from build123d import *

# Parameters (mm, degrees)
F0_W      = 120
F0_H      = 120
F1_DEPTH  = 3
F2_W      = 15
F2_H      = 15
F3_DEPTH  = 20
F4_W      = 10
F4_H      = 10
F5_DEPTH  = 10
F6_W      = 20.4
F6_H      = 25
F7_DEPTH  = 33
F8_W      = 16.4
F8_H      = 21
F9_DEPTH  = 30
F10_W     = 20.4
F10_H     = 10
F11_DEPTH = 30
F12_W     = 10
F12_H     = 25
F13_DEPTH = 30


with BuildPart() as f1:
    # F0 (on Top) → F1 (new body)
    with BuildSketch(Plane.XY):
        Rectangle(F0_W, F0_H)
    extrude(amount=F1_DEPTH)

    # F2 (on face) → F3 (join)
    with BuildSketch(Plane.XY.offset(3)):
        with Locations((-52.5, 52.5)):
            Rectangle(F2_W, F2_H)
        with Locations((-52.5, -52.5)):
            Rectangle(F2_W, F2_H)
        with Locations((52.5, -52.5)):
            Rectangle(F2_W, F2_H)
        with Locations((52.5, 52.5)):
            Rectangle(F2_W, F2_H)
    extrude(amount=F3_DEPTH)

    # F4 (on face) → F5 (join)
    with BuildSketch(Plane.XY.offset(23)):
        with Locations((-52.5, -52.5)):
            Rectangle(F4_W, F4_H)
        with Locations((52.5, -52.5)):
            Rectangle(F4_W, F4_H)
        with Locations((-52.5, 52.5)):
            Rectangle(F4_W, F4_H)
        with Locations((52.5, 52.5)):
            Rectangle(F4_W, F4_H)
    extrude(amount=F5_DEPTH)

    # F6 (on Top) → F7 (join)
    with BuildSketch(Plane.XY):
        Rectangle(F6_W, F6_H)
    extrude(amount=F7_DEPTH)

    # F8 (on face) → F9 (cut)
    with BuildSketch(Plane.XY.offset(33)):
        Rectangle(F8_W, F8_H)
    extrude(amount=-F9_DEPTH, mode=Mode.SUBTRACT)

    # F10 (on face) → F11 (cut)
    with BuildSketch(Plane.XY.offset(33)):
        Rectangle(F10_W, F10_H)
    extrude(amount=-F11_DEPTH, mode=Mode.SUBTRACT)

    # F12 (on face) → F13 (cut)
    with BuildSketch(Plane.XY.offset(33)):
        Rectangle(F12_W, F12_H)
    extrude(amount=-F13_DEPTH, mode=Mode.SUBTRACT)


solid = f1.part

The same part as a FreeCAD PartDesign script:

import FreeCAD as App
import Part
import Sketcher

V = App.Vector

doc = App.newDocument("Part")
body = doc.addObject("PartDesign::Body", "Body")

# Sketch on XY plane
sketch1 = body.newObject("Sketcher::SketchObject", "Sketch")
sketch1.AttachmentSupport = (doc.getObject("XY_Plane"), [""])
sketch1.MapMode = "FlatFace"
sketch1.addGeometry([
    Part.LineSegment(V(-60, 60, 0), V(-60, -60, 0)),
    Part.LineSegment(V(-60, -60, 0), V(60, -60, 0)),
    Part.LineSegment(V(60, -60, 0), V(60, 60, 0)),
    Part.LineSegment(V(60, 60, 0), V(-60, 60, 0)),
], False)
sketch1.addConstraint([
    Sketcher.Constraint("Coincident", 0, 2, 1, 1),
    Sketcher.Constraint("Coincident", 1, 2, 2, 1),
    Sketcher.Constraint("Coincident", 2, 2, 3, 1),
    Sketcher.Constraint("Coincident", 3, 2, 0, 1),
    Sketcher.Constraint("Vertical", 0),
    Sketcher.Constraint("Horizontal", 1),
    Sketcher.Constraint("Vertical", 2),
    Sketcher.Constraint("Horizontal", 3),
    Sketcher.Constraint("Symmetric", 0, 2, 2, 2, -1, 1),
    Sketcher.Constraint("Equal", 3, 0),
    Sketcher.Constraint("DistanceX", 1, 1, 1, 2, 120.0),
])
pad1 = body.newObject("PartDesign::Pad", "Pad")
pad1.Profile = sketch1
pad1.Length = 3

# Sketch on XY plane
sketch2 = body.newObject("Sketcher::SketchObject", "Sketch001")
sketch2.AttachmentSupport = (doc.getObject("XY_Plane"), [""])
sketch2.MapMode = "FlatFace"
sketch2.AttachmentOffset = App.Placement(V(0, 0, 3), App.Rotation())
sketch2.addGeometry([
    Part.LineSegment(V(-60, 60, 0), V(-60, 45, 0)),  # 0
    Part.LineSegment(V(-60, 45, 0), V(-45, 45, 0)),  # 1
    Part.LineSegment(V(-45, 45, 0), V(-45, 60, 0)),  # 2
    Part.LineSegment(V(-45, 60, 0), V(-60, 60, 0)),  # 3
    Part.LineSegment(V(-60, -45, 0), V(-60, -60, 0)),  # 4
    Part.LineSegment(V(-60, -60, 0), V(-45, -60, 0)),  # 5
    Part.LineSegment(V(-45, -60, 0), V(-45, -45, 0)),  # 6
    Part.LineSegment(V(-45, -45, 0), V(-60, -45, 0)),  # 7
    Part.LineSegment(V(45, -45, 0), V(45, -60, 0)),  # 8
    Part.LineSegment(V(45, -60, 0), V(60, -60, 0)),  # 9
    Part.LineSegment(V(60, -60, 0), V(60, -45, 0)),  # 10
    Part.LineSegment(V(60, -45, 0), V(45, -45, 0)),  # 11
    Part.LineSegment(V(45, 60, 0), V(45, 45, 0)),  # 12
    Part.LineSegment(V(45, 45, 0), V(60, 45, 0)),  # 13
    Part.LineSegment(V(60, 45, 0), V(60, 60, 0)),  # 14
    Part.LineSegment(V(60, 60, 0), V(45, 60, 0)),  # 15
], False)
sketch2.addConstraint([
    Sketcher.Constraint("Coincident", 0, 2, 1, 1),
    Sketcher.Constraint("Coincident", 1, 2, 2, 1),
    Sketcher.Constraint("Coincident", 2, 2, 3, 1),
    Sketcher.Constraint("Coincident", 3, 2, 0, 1),
    Sketcher.Constraint("Coincident", 4, 2, 5, 1),
    Sketcher.Constraint("Coincident", 5, 2, 6, 1),
    Sketcher.Constraint("Coincident", 6, 2, 7, 1),
    Sketcher.Constraint("Coincident", 7, 2, 4, 1),
    Sketcher.Constraint("Coincident", 8, 2, 9, 1),
    Sketcher.Constraint("Coincident", 9, 2, 10, 1),
    Sketcher.Constraint("Coincident", 10, 2, 11, 1),
    Sketcher.Constraint("Coincident", 11, 2, 8, 1),
    Sketcher.Constraint("Coincident", 12, 2, 13, 1),
    Sketcher.Constraint("Coincident", 13, 2, 14, 1),
    Sketcher.Constraint("Coincident", 14, 2, 15, 1),
    Sketcher.Constraint("Coincident", 15, 2, 12, 1),
    Sketcher.Constraint("Vertical", 0),
    Sketcher.Constraint("Horizontal", 1),
    Sketcher.Constraint("Vertical", 2),
    Sketcher.Constraint("Horizontal", 3),
    Sketcher.Constraint("Vertical", 4),
    Sketcher.Constraint("Horizontal", 5),
    Sketcher.Constraint("Vertical", 6),
    Sketcher.Constraint("Horizontal", 7),
    Sketcher.Constraint("Vertical", 8),
    Sketcher.Constraint("Horizontal", 9),
    Sketcher.Constraint("Vertical", 10),
    Sketcher.Constraint("Horizontal", 11),
    Sketcher.Constraint("Vertical", 12),
    Sketcher.Constraint("Horizontal", 13),
    Sketcher.Constraint("Vertical", 14),
    Sketcher.Constraint("Horizontal", 15),
    Sketcher.Constraint("Symmetric", 2, 2, 8, 2, -1, 1),
    Sketcher.Constraint("Symmetric", 0, 2, 10, 2, -1, 1),
    Sketcher.Constraint("Symmetric", 6, 2, 12, 2, -1, 1),
    Sketcher.Constraint("Symmetric", 4, 2, 14, 2, -1, 1),
    Sketcher.Constraint("Symmetric", 5, 2, 8, 2, -2),
    Sketcher.Constraint("Symmetric", 7, 2, 10, 2, -2),
    Sketcher.Constraint("Equal", 15, 0),
    Sketcher.Constraint("DistanceX", 1, 1, 1, 2, 15.0),
    Sketcher.Constraint("DistanceX", 0, 2, -1, 1, 60.0),
    Sketcher.Constraint("DistanceY", -1, 1, 0, 2, 45.0),
])
pad2 = body.newObject("PartDesign::Pad", "Pad001")
pad2.Profile = sketch2
pad2.Length = 20

# Sketch on XY plane
sketch3 = body.newObject("Sketcher::SketchObject", "Sketch002")
sketch3.AttachmentSupport = (doc.getObject("XY_Plane"), [""])
sketch3.MapMode = "FlatFace"
sketch3.AttachmentOffset = App.Placement(V(0, 0, 23), App.Rotation())
sketch3.addGeometry([
    Part.LineSegment(V(-58, -48, 0), V(-58, -58, 0)),  # 0
    Part.LineSegment(V(-58, -58, 0), V(-48, -58, 0)),  # 1
    Part.LineSegment(V(-48, -58, 0), V(-48, -48, 0)),  # 2
    Part.LineSegment(V(-48, -48, 0), V(-58, -48, 0)),  # 3
    Part.LineSegment(V(48, -48, 0), V(48, -58, 0)),  # 4
    Part.LineSegment(V(48, -58, 0), V(58, -58, 0)),  # 5
    Part.LineSegment(V(58, -58, 0), V(58, -48, 0)),  # 6
    Part.LineSegment(V(58, -48, 0), V(48, -48, 0)),  # 7
    Part.LineSegment(V(-58, 58, 0), V(-58, 48, 0)),  # 8
    Part.LineSegment(V(-58, 48, 0), V(-48, 48, 0)),  # 9
    Part.LineSegment(V(-48, 48, 0), V(-48, 58, 0)),  # 10
    Part.LineSegment(V(-48, 58, 0), V(-58, 58, 0)),  # 11
    Part.LineSegment(V(48, 58, 0), V(48, 48, 0)),  # 12
    Part.LineSegment(V(48, 48, 0), V(58, 48, 0)),  # 13
    Part.LineSegment(V(58, 48, 0), V(58, 58, 0)),  # 14
    Part.LineSegment(V(58, 58, 0), V(48, 58, 0)),  # 15
], False)
sketch3.addConstraint([
    Sketcher.Constraint("Coincident", 0, 2, 1, 1),
    Sketcher.Constraint("Coincident", 1, 2, 2, 1),
    Sketcher.Constraint("Coincident", 2, 2, 3, 1),
    Sketcher.Constraint("Coincident", 3, 2, 0, 1),
    Sketcher.Constraint("Coincident", 4, 2, 5, 1),
    Sketcher.Constraint("Coincident", 5, 2, 6, 1),
    Sketcher.Constraint("Coincident", 6, 2, 7, 1),
    Sketcher.Constraint("Coincident", 7, 2, 4, 1),
    Sketcher.Constraint("Coincident", 8, 2, 9, 1),
    Sketcher.Constraint("Coincident", 9, 2, 10, 1),
    Sketcher.Constraint("Coincident", 10, 2, 11, 1),
    Sketcher.Constraint("Coincident", 11, 2, 8, 1),
    Sketcher.Constraint("Coincident", 12, 2, 13, 1),
    Sketcher.Constraint("Coincident", 13, 2, 14, 1),
    Sketcher.Constraint("Coincident", 14, 2, 15, 1),
    Sketcher.Constraint("Coincident", 15, 2, 12, 1),
    Sketcher.Constraint("Vertical", 0),
    Sketcher.Constraint("Horizontal", 1),
    Sketcher.Constraint("Vertical", 2),
    Sketcher.Constraint("Horizontal", 3),
    Sketcher.Constraint("Vertical", 4),
    Sketcher.Constraint("Horizontal", 5),
    Sketcher.Constraint("Vertical", 6),
    Sketcher.Constraint("Horizontal", 7),
    Sketcher.Constraint("Vertical", 8),
    Sketcher.Constraint("Horizontal", 9),
    Sketcher.Constraint("Vertical", 10),
    Sketcher.Constraint("Horizontal", 11),
    Sketcher.Constraint("Vertical", 12),
    Sketcher.Constraint("Horizontal", 13),
    Sketcher.Constraint("Vertical", 14),
    Sketcher.Constraint("Horizontal", 15),
    Sketcher.Constraint("Symmetric", 6, 2, 8, 2, -1, 1),
    Sketcher.Constraint("Symmetric", 4, 2, 10, 2, -1, 1),
    Sketcher.Constraint("Symmetric", 2, 2, 12, 2, -1, 1),
    Sketcher.Constraint("Symmetric", 0, 2, 14, 2, -1, 1),
    Sketcher.Constraint("Symmetric", 1, 2, 4, 2, -2),
    Sketcher.Constraint("Symmetric", 3, 2, 6, 2, -2),
    Sketcher.Constraint("Equal", 15, 0),
    Sketcher.Constraint("DistanceX", 1, 1, 1, 2, 10.0),
    Sketcher.Constraint("DistanceX", 1, 2, 4, 2, 95.0),
    Sketcher.Constraint("DistanceY", 3, 2, 8, 2, 95.0),
])
pad3 = body.newObject("PartDesign::Pad", "Pad002")
pad3.Profile = sketch3
pad3.Length = 10

# Sketch on XY plane
sketch4 = body.newObject("Sketcher::SketchObject", "Sketch003")
sketch4.AttachmentSupport = (doc.getObject("XY_Plane"), [""])
sketch4.MapMode = "FlatFace"
sketch4.addGeometry([
    Part.LineSegment(V(-10, 12, 0), V(-10, -12, 0)),
    Part.LineSegment(V(-10, -12, 0), V(10, -12, 0)),
    Part.LineSegment(V(10, -12, 0), V(10, 12, 0)),
    Part.LineSegment(V(10, 12, 0), V(-10, 12, 0)),
], False)
sketch4.addConstraint([
    Sketcher.Constraint("Coincident", 0, 2, 1, 1),
    Sketcher.Constraint("Coincident", 1, 2, 2, 1),
    Sketcher.Constraint("Coincident", 2, 2, 3, 1),
    Sketcher.Constraint("Coincident", 3, 2, 0, 1),
    Sketcher.Constraint("Vertical", 0),
    Sketcher.Constraint("Horizontal", 1),
    Sketcher.Constraint("Vertical", 2),
    Sketcher.Constraint("Horizontal", 3),
    Sketcher.Constraint("Symmetric", 0, 2, 2, 2, -1, 1),
    Sketcher.Constraint("DistanceY", 0, 2, 0, 1, 25.0),
    Sketcher.Constraint("DistanceX", 1, 1, 1, 2, 20.4),
])
pad4 = body.newObject("PartDesign::Pad", "Pad003")
pad4.Profile = sketch4
pad4.Length = 33

# Sketch on XY plane
sketch5 = body.newObject("Sketcher::SketchObject", "Sketch004")
sketch5.AttachmentSupport = (doc.getObject("XY_Plane"), [""])
sketch5.MapMode = "FlatFace"
sketch5.AttachmentOffset = App.Placement(V(0, 0, 33), App.Rotation())
sketch5.addGeometry([
    Part.LineSegment(V(-8, 10, 0), V(-8, -10, 0)),
    Part.LineSegment(V(-8, -10, 0), V(8, -10, 0)),
    Part.LineSegment(V(8, -10, 0), V(8, 10, 0)),
    Part.LineSegment(V(8, 10, 0), V(-8, 10, 0)),
], False)
sketch5.addConstraint([
    Sketcher.Constraint("Coincident", 0, 2, 1, 1),
    Sketcher.Constraint("Coincident", 1, 2, 2, 1),
    Sketcher.Constraint("Coincident", 2, 2, 3, 1),
    Sketcher.Constraint("Coincident", 3, 2, 0, 1),
    Sketcher.Constraint("Vertical", 0),
    Sketcher.Constraint("Horizontal", 1),
    Sketcher.Constraint("Vertical", 2),
    Sketcher.Constraint("Horizontal", 3),
    Sketcher.Constraint("Symmetric", 0, 2, 2, 2, -1, 1),
    Sketcher.Constraint("DistanceY", 0, 2, 0, 1, 21.0),
    Sketcher.Constraint("DistanceX", 1, 1, 1, 2, 16.4),
])
pocket1 = body.newObject("PartDesign::Pocket", "Pocket")
pocket1.Profile = sketch5
pocket1.Length = 30

# Sketch on XY plane
sketch6 = body.newObject("Sketcher::SketchObject", "Sketch005")
sketch6.AttachmentSupport = (doc.getObject("XY_Plane"), [""])
sketch6.MapMode = "FlatFace"
sketch6.AttachmentOffset = App.Placement(V(0, 0, 33), App.Rotation())
sketch6.addGeometry([
    Part.LineSegment(V(-10, 5, 0), V(-10, -5, 0)),
    Part.LineSegment(V(-10, -5, 0), V(10, -5, 0)),
    Part.LineSegment(V(10, -5, 0), V(10, 5, 0)),
    Part.LineSegment(V(10, 5, 0), V(-10, 5, 0)),
], False)
sketch6.addConstraint([
    Sketcher.Constraint("Coincident", 0, 2, 1, 1),
    Sketcher.Constraint("Coincident", 1, 2, 2, 1),
    Sketcher.Constraint("Coincident", 2, 2, 3, 1),
    Sketcher.Constraint("Coincident", 3, 2, 0, 1),
    Sketcher.Constraint("Vertical", 0),
    Sketcher.Constraint("Horizontal", 1),
    Sketcher.Constraint("Vertical", 2),
    Sketcher.Constraint("Horizontal", 3),
    Sketcher.Constraint("Symmetric", 0, 2, 2, 2, -1, 1),
    Sketcher.Constraint("DistanceY", 0, 2, 0, 1, 10.0),
    Sketcher.Constraint("DistanceX", 1, 1, 1, 2, 20.4),
])
pocket2 = body.newObject("PartDesign::Pocket", "Pocket001")
pocket2.Profile = sketch6
pocket2.Length = 30

# Sketch on XY plane
sketch7 = body.newObject("Sketcher::SketchObject", "Sketch006")
sketch7.AttachmentSupport = (doc.getObject("XY_Plane"), [""])
sketch7.MapMode = "FlatFace"
sketch7.AttachmentOffset = App.Placement(V(0, 0, 33), App.Rotation())
sketch7.addGeometry([
    Part.LineSegment(V(-5, 12, 0), V(-5, -12, 0)),
    Part.LineSegment(V(-5, -12, 0), V(5, -12, 0)),
    Part.LineSegment(V(5, -12, 0), V(5, 12, 0)),
    Part.LineSegment(V(5, 12, 0), V(-5, 12, 0)),
], False)
sketch7.addConstraint([
    Sketcher.Constraint("Coincident", 0, 2, 1, 1),
    Sketcher.Constraint("Coincident", 1, 2, 2, 1),
    Sketcher.Constraint("Coincident", 2, 2, 3, 1),
    Sketcher.Constraint("Coincident", 3, 2, 0, 1),
    Sketcher.Constraint("Vertical", 0),
    Sketcher.Constraint("Horizontal", 1),
    Sketcher.Constraint("Vertical", 2),
    Sketcher.Constraint("Horizontal", 3),
    Sketcher.Constraint("Symmetric", 0, 2, 2, 2, -1, 1),
    Sketcher.Constraint("DistanceX", 1, 1, 1, 2, 10.0),
    Sketcher.Constraint("DistanceY", 0, 2, 0, 1, 25.0),
])
pocket3 = body.newObject("PartDesign::Pocket", "Pocket002")
pocket3.Profile = sketch7
pocket3.Length = 30

doc.recompute()
